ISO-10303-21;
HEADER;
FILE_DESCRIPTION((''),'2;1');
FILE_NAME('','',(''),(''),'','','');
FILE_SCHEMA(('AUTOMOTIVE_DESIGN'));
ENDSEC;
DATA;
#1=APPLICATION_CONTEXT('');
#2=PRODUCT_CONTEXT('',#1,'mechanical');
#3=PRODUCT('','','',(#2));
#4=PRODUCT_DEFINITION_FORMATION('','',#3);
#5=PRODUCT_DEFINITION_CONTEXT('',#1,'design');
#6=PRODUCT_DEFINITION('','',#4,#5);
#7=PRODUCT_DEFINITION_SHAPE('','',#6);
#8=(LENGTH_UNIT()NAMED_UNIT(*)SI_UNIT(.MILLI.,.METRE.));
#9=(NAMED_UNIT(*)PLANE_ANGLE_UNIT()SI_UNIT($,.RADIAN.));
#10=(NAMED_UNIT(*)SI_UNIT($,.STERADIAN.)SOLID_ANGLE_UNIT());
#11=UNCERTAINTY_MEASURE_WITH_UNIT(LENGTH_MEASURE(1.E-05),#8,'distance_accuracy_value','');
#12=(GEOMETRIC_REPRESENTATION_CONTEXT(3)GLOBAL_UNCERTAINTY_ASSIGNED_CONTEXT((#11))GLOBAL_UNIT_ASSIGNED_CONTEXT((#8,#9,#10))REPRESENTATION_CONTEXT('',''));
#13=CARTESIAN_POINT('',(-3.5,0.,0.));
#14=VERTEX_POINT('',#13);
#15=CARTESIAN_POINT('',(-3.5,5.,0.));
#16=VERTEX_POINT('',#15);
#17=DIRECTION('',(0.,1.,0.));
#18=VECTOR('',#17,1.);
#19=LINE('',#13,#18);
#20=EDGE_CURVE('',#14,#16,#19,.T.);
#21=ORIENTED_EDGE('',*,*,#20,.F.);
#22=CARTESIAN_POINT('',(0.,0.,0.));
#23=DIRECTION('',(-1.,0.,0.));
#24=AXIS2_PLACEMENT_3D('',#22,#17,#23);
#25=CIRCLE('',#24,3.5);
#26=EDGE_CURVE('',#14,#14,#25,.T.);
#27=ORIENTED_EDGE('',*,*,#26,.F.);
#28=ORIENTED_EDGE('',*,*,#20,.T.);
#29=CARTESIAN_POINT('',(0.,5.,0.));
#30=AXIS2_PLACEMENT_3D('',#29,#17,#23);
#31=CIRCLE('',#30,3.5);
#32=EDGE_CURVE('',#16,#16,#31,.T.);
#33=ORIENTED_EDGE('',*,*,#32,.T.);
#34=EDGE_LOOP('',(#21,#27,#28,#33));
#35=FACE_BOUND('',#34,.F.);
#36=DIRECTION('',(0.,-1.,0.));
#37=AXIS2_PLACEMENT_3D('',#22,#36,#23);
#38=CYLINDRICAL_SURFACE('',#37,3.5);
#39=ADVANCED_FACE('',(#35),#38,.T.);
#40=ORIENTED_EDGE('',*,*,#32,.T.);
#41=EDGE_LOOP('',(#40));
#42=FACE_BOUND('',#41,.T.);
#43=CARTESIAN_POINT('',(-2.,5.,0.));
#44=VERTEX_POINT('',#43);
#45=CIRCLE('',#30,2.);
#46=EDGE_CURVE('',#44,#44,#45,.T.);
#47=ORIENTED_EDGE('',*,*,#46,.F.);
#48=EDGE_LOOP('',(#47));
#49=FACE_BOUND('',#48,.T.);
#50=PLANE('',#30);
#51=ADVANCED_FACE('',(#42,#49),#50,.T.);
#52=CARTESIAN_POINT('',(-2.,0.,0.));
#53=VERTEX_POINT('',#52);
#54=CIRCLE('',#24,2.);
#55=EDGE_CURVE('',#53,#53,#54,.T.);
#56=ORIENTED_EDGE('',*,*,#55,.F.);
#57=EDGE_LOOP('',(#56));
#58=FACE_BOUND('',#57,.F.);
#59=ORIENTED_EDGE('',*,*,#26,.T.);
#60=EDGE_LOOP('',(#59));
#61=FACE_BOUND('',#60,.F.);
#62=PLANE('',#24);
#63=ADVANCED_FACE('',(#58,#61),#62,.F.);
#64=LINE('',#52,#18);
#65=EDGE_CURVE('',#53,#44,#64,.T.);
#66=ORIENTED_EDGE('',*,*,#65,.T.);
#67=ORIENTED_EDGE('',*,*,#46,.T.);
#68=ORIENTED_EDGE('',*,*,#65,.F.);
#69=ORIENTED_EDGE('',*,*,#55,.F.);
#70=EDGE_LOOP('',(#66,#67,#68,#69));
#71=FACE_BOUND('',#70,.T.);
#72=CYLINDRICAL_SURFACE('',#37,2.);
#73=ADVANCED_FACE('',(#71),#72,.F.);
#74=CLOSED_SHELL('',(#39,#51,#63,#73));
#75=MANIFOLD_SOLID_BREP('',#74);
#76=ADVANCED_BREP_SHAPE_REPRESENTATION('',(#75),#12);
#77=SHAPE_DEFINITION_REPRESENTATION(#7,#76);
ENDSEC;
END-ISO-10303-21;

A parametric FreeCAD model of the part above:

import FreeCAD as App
import Part
import Sketcher

doc = App.newDocument("Part")
body = doc.addObject("PartDesign::Body", "Body")

sketch1 = body.newObject("Sketcher::SketchObject", "Sketch")
sketch1.AttachmentSupport = (doc.getObject("XZ_Plane"), [""])
sketch1.MapMode = "FlatFace"
sketch1.addGeometry(Part.Circle(App.Vector(0, 0, 0), App.Vector(0, 0, 1), 3.5), False)
sketch1.addGeometry(Part.Circle(App.Vector(0, 0, 0), App.Vector(0, 0, 1), 2), False)
sketch1.addConstraint(Sketcher.Constraint("Coincident", 0, 3, -1, 1))
sketch1.addConstraint(Sketcher.Constraint("Coincident", 1, 3, -1, 1))
sketch1.addConstraint(Sketcher.Constraint("Diameter", 1, 4.0))
sketch1.addConstraint(Sketcher.Constraint("Diameter", 0, 7.0))
pad1 = body.newObject("PartDesign::Pad", "Pad")
pad1.Profile = sketch1
pad1.Length = 5
pad1.Reversed = True

doc.recompute()
